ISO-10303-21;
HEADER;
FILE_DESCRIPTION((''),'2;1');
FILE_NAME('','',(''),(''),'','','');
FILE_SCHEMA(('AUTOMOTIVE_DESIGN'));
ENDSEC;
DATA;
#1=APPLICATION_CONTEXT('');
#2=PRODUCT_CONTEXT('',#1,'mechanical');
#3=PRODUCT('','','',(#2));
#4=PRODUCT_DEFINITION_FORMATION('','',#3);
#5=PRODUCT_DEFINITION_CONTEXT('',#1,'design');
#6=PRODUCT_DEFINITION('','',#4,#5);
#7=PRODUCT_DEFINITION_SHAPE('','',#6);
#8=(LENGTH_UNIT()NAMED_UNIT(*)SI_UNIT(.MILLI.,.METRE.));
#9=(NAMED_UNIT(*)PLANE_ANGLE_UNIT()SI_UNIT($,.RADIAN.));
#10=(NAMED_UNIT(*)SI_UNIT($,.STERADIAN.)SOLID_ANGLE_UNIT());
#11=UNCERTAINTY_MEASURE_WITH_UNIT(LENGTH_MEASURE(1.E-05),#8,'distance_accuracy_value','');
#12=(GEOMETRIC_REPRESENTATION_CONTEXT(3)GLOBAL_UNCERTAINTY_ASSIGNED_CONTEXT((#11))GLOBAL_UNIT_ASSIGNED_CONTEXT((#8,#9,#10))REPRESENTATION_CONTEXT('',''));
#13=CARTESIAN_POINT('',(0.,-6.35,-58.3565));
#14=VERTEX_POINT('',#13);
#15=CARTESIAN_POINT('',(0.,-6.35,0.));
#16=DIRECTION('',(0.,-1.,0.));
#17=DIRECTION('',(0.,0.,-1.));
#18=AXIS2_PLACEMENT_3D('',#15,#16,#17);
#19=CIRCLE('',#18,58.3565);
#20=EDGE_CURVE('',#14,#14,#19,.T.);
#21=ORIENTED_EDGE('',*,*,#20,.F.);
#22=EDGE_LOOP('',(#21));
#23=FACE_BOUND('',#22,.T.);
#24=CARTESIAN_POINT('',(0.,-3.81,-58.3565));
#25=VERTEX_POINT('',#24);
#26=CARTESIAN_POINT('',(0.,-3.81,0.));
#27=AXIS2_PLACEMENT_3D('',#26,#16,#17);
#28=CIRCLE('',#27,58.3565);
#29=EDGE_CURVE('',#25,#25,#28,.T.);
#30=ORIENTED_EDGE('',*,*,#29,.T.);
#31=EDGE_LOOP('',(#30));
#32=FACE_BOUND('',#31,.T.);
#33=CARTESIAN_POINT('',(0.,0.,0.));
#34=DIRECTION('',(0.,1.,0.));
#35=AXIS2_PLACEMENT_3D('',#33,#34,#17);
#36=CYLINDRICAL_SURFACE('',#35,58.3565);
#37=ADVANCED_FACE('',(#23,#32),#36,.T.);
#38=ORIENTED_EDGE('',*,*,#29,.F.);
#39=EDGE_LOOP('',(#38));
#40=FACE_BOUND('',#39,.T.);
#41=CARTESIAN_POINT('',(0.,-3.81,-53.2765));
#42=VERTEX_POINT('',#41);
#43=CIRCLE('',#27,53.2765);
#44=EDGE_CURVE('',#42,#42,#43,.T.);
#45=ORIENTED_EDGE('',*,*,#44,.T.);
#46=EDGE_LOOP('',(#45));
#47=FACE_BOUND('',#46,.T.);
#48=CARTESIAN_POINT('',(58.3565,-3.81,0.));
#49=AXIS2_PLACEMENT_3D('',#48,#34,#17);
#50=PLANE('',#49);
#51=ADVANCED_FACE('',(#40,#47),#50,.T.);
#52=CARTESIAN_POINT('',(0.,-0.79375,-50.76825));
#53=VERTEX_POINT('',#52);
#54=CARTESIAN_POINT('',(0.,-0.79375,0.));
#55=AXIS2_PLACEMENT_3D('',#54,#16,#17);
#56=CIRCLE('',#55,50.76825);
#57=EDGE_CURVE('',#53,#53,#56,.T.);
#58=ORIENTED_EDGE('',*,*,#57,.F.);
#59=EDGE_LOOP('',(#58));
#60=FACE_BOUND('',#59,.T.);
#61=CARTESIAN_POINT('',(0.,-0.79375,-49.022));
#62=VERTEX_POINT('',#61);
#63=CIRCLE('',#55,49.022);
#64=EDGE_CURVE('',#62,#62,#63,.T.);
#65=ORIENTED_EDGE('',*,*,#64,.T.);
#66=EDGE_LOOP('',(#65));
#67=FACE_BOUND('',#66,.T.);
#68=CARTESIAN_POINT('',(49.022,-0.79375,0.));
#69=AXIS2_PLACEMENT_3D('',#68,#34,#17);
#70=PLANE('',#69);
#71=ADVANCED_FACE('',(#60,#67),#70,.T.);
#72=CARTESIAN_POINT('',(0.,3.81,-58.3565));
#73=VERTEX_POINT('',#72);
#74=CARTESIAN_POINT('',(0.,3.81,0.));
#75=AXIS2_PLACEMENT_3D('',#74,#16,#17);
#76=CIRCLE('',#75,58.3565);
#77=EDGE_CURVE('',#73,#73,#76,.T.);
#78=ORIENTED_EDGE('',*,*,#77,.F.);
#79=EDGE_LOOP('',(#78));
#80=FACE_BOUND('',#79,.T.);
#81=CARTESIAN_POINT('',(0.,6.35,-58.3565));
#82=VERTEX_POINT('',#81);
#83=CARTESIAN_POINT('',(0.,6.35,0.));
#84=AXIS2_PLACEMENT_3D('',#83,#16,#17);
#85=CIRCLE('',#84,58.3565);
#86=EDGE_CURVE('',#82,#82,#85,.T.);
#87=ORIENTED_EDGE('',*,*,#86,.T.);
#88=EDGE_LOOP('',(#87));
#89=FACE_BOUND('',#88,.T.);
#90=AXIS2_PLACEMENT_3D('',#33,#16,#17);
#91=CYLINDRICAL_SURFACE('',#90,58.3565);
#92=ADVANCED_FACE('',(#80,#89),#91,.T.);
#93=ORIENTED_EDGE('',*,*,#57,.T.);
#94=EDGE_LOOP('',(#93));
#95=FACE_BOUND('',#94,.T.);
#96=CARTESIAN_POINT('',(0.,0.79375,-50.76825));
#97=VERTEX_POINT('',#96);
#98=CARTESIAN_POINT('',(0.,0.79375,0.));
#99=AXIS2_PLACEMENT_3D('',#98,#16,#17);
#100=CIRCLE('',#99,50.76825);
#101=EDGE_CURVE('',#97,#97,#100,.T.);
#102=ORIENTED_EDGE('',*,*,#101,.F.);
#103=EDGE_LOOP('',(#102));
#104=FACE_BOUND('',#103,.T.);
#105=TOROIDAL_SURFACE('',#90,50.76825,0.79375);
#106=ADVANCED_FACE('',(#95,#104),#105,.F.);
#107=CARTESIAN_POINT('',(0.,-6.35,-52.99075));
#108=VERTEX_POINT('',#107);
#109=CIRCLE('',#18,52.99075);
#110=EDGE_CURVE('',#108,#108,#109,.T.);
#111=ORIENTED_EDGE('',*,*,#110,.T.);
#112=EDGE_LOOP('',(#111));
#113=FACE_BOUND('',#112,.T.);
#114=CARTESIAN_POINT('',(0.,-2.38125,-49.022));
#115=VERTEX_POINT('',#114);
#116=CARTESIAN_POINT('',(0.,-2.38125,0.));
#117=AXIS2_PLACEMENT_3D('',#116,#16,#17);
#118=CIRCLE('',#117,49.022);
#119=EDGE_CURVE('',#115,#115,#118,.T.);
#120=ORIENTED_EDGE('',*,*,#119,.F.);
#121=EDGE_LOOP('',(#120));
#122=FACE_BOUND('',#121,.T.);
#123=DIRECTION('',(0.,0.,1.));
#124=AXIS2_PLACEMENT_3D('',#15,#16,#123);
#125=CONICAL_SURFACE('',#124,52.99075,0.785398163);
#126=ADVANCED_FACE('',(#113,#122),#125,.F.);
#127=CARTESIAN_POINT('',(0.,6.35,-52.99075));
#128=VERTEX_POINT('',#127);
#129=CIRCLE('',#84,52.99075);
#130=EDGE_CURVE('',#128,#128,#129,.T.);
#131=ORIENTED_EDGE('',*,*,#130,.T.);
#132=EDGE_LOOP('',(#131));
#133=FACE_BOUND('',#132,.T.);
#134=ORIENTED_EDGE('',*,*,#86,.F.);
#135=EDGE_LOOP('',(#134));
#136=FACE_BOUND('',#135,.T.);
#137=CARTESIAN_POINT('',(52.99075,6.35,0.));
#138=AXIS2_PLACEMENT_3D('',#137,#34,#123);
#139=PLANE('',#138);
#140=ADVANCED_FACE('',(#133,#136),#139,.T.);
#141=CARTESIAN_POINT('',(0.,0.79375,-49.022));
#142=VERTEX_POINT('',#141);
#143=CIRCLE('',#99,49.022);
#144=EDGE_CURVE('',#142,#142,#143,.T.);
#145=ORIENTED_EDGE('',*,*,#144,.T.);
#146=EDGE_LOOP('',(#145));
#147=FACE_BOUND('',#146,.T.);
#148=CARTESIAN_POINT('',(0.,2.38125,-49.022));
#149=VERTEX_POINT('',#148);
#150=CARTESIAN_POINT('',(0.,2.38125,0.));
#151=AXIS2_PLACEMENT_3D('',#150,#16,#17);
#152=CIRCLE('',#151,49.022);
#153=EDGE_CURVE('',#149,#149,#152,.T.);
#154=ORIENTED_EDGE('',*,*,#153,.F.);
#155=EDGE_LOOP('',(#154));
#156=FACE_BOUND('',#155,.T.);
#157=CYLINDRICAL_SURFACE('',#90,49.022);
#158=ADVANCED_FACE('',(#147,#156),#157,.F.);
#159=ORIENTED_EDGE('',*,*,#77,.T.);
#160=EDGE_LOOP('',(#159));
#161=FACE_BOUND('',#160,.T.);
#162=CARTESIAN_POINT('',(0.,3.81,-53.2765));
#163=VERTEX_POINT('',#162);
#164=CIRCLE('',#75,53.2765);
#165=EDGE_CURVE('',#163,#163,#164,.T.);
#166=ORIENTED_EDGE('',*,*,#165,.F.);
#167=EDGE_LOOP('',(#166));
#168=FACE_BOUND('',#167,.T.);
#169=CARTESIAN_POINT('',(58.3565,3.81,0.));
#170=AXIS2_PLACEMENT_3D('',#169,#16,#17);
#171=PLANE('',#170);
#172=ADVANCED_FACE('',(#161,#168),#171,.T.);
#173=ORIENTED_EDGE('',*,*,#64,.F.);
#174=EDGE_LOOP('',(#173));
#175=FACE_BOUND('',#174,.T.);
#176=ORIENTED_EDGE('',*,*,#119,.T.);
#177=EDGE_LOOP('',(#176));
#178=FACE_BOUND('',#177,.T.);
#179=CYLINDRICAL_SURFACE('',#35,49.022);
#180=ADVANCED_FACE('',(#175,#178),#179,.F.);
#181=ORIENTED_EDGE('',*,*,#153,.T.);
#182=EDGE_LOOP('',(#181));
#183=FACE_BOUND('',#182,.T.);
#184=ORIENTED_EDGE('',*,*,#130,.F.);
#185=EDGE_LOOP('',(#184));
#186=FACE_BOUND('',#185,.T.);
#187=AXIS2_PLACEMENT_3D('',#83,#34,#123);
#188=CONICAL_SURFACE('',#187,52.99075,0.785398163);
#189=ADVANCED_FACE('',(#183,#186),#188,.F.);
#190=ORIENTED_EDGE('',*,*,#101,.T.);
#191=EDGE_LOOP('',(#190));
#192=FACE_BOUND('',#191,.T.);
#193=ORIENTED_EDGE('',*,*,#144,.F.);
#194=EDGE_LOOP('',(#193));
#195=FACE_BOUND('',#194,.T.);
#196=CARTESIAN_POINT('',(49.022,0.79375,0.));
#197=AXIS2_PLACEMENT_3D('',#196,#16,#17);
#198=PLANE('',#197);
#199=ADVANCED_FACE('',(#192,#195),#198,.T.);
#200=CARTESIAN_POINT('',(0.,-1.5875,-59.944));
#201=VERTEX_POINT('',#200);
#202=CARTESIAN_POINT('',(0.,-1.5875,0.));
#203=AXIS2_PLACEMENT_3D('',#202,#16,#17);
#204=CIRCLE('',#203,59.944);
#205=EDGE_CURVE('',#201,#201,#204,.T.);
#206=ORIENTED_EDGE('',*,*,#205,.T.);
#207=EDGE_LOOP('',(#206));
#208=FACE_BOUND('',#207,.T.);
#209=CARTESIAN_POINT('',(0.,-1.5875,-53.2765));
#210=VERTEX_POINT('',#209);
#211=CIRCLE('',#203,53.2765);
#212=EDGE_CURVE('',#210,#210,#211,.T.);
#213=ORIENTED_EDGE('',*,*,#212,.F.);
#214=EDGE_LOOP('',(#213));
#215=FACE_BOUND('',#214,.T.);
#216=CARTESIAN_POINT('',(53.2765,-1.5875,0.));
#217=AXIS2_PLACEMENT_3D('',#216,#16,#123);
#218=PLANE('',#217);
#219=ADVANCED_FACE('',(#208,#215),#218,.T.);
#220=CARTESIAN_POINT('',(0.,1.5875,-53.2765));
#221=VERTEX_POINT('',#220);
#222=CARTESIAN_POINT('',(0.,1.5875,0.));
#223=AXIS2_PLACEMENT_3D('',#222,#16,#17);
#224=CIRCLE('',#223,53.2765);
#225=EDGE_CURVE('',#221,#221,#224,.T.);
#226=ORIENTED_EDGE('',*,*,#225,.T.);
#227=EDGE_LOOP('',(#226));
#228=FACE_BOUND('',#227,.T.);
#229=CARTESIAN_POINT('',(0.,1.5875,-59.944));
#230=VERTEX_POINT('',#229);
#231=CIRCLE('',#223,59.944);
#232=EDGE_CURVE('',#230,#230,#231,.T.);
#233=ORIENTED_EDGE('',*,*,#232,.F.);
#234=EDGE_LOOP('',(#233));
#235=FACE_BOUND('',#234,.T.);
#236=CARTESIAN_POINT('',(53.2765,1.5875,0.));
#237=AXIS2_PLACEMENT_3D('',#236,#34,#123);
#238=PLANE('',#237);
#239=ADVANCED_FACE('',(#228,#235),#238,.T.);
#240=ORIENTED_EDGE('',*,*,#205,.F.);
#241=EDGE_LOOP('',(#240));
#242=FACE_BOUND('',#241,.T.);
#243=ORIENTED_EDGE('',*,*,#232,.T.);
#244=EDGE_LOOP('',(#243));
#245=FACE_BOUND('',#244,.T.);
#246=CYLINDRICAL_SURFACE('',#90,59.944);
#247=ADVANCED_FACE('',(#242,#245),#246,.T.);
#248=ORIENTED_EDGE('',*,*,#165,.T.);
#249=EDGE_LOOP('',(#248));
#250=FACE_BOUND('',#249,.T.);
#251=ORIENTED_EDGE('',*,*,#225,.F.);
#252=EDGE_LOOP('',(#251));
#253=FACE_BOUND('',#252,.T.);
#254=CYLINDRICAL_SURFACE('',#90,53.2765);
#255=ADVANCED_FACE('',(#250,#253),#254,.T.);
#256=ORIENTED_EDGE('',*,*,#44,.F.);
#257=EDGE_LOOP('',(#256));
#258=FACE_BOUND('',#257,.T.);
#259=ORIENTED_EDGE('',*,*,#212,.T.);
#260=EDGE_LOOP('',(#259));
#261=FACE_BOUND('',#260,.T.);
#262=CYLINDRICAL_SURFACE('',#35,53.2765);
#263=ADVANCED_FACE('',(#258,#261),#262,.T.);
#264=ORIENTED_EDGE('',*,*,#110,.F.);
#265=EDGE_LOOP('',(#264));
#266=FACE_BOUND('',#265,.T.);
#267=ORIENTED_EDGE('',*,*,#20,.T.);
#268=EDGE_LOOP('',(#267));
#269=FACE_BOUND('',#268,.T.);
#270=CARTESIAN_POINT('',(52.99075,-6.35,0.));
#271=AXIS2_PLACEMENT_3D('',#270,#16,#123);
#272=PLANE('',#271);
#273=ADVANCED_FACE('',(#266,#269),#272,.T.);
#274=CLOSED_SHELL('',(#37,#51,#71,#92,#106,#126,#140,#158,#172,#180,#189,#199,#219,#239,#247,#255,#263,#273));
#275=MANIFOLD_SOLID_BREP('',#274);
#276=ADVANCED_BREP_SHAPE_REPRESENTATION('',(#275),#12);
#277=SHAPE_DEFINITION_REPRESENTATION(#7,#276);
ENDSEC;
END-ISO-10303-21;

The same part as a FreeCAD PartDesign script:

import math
import FreeCAD as App
import Part
import Sketcher
from FreeCAD import Vector
Q = App.Units.Quantity

doc = App.newDocument("Part")
params = doc.addObject("Spreadsheet::Sheet", "Params")
for row, (alias, value) in enumerate([
    ("sketch1_width", "0.2 in"),
    ("sketch1_height", "0.1 in"),
    ("sketch1_radius", "0.03125 in"),
    ("sketch1_width2", "0.33 in"),
    ("sketch1_height2", "0.0625 in"),
    ("revolution_angle", "360 deg"),
], start=1):
    params.set(f"A{row}", alias)
    params.set(f"B{row}", "=" + value)
    params.setAlias(f"B{row}", alias)

body = doc.addObject("PartDesign::Body", "Body")

# Sketch on XY plane
sketch1 = body.newObject("Sketcher::SketchObject", "Sketch")
sketch1.AttachmentSupport = (doc.getObject("XY_Plane"), [""])
sketch1.MapMode = "FlatFace"
sketch1.addGeometry([
    Part.LineSegment(Vector(49, 2.4, 0), Vector(49, 0.8, 0)),  # 0
    Part.LineSegment(Vector(49, 0.8, 0), Vector(50.8, 0.8, 0)),  # 1
    Part.ArcOfCircle(Part.Circle(Vector(50.8, 0, 0), Vector(0, 0, 1), 0.8), math.radians(0), math.radians(90)),  # 2
    Part.LineSegment(Vector(51.6, 0, 0), Vector(59.9, 0, 0)),  # 3
    Part.LineSegment(Vector(59.9, 0, 0), Vector(59.9, 1.6, 0)),  # 4
    Part.LineSegment(Vector(59.9, 1.6, 0), Vector(53.3, 1.6, 0)),  # 5
    Part.LineSegment(Vector(53.3, 1.6, 0), Vector(53.3, 3.8, 0)),  # 6
    Part.LineSegment(Vector(53.3, 3.8, 0), Vector(58.4, 3.8, 0)),  # 7
    Part.LineSegment(Vector(58.4, 3.8, 0), Vector(58.4, 6.3, 0)),  # 8
    Part.LineSegment(Vector(58.4, 6.3, 0), Vector(53, 6.3, 0)),  # 9
    Part.LineSegment(Vector(53, 6.3, 0), Vector(49, 2.4, 0)),  # 10
], False)
sketch1.addConstraint([
    Sketcher.Constraint("Coincident", 0, 2, 1, 1),
    Sketcher.Constraint("Tangent", 1, 2, 2, 2),
    Sketcher.Constraint("Coincident", 2, 1, 3, 1),
    Sketcher.Constraint("Coincident", 3, 2, 4, 1),
    Sketcher.Constraint("Coincident", 4, 2, 5, 1),
    Sketcher.Constraint("Coincident", 5, 2, 6, 1),
    Sketcher.Constraint("Coincident", 6, 2, 7, 1),
    Sketcher.Constraint("Coincident", 7, 2, 8, 1),
    Sketcher.Constraint("Coincident", 8, 2, 9, 1),
    Sketcher.Constraint("Coincident", 9, 2, 10, 1),
    Sketcher.Constraint("Coincident", 10, 2, 0, 1),
    Sketcher.Constraint("Vertical", 0),
    Sketcher.Constraint("Horizontal", 1),
    Sketcher.Constraint("Horizontal", 3),
    Sketcher.Constraint("Vertical", 4),
    Sketcher.Constraint("Horizontal", 5),
    Sketcher.Constraint("Vertical", 6),
    Sketcher.Constraint("Horizontal", 7),
    Sketcher.Constraint("Vertical", 8),
    Sketcher.Constraint("Horizontal", 9),
    Sketcher.Constraint("PointOnObject", 2, 3, -1),
    Sketcher.Constraint("PointOnObject", 2, 1, -1),
    Sketcher.Constraint("Equal", 0, 4),
    Sketcher.Constraint("DistanceX", 7, 1, 7, 2, Q("0.2 in")),
    Sketcher.Constraint("DistanceY", 8, 1, 8, 2, Q("0.1 in")),
    Sketcher.Constraint("Angle", 10, Q("-135 deg")),
    Sketcher.Constraint("Radius", 2, Q("0.03125 in")),
    Sketcher.Constraint("DistanceX", 3, 1, 3, 2, Q("0.33 in")),
    Sketcher.Constraint("DistanceX", 0, 2, 2, 1, Q("0.1 in")),
    Sketcher.Constraint("DistanceY", 0, 2, 0, 1, Q("0.0625 in")),
    Sketcher.Constraint("DistanceX", -1, 1, 0, 2, Q("1.93 in")),
    Sketcher.Constraint("DistanceY", -1, 1, 6, 2, Q("0.15 in")),
    Sketcher.Constraint("DistanceX", 5, 2, 5, 1, Q("0.2625 in")),
])
sketch1.setExpression("Constraints[23]", "Params.sketch1_width")
sketch1.setExpression("Constraints[24]", "Params.sketch1_height")
sketch1.setExpression("Constraints[26]", "Params.sketch1_radius")
sketch1.setExpression("Constraints[27]", "Params.sketch1_width2")
sketch1.setExpression("Constraints[29]", "Params.sketch1_height2")
revolution = body.newObject("PartDesign::Revolution", "Revolution")
revolution.Profile = sketch1
revolution.ReferenceAxis = (sketch1, ["V_Axis"])
revolution.setExpression("Angle", "Params.revolution_angle")
doc.recompute()

mirrored = body.newObject("PartDesign::Mirrored", "Mirrored")
mirrored.Originals = [revolution]
mirrored.MirrorPlane = (doc.getObject("XZ_Plane"), [""])
body.Tip = mirrored

doc.recompute()
